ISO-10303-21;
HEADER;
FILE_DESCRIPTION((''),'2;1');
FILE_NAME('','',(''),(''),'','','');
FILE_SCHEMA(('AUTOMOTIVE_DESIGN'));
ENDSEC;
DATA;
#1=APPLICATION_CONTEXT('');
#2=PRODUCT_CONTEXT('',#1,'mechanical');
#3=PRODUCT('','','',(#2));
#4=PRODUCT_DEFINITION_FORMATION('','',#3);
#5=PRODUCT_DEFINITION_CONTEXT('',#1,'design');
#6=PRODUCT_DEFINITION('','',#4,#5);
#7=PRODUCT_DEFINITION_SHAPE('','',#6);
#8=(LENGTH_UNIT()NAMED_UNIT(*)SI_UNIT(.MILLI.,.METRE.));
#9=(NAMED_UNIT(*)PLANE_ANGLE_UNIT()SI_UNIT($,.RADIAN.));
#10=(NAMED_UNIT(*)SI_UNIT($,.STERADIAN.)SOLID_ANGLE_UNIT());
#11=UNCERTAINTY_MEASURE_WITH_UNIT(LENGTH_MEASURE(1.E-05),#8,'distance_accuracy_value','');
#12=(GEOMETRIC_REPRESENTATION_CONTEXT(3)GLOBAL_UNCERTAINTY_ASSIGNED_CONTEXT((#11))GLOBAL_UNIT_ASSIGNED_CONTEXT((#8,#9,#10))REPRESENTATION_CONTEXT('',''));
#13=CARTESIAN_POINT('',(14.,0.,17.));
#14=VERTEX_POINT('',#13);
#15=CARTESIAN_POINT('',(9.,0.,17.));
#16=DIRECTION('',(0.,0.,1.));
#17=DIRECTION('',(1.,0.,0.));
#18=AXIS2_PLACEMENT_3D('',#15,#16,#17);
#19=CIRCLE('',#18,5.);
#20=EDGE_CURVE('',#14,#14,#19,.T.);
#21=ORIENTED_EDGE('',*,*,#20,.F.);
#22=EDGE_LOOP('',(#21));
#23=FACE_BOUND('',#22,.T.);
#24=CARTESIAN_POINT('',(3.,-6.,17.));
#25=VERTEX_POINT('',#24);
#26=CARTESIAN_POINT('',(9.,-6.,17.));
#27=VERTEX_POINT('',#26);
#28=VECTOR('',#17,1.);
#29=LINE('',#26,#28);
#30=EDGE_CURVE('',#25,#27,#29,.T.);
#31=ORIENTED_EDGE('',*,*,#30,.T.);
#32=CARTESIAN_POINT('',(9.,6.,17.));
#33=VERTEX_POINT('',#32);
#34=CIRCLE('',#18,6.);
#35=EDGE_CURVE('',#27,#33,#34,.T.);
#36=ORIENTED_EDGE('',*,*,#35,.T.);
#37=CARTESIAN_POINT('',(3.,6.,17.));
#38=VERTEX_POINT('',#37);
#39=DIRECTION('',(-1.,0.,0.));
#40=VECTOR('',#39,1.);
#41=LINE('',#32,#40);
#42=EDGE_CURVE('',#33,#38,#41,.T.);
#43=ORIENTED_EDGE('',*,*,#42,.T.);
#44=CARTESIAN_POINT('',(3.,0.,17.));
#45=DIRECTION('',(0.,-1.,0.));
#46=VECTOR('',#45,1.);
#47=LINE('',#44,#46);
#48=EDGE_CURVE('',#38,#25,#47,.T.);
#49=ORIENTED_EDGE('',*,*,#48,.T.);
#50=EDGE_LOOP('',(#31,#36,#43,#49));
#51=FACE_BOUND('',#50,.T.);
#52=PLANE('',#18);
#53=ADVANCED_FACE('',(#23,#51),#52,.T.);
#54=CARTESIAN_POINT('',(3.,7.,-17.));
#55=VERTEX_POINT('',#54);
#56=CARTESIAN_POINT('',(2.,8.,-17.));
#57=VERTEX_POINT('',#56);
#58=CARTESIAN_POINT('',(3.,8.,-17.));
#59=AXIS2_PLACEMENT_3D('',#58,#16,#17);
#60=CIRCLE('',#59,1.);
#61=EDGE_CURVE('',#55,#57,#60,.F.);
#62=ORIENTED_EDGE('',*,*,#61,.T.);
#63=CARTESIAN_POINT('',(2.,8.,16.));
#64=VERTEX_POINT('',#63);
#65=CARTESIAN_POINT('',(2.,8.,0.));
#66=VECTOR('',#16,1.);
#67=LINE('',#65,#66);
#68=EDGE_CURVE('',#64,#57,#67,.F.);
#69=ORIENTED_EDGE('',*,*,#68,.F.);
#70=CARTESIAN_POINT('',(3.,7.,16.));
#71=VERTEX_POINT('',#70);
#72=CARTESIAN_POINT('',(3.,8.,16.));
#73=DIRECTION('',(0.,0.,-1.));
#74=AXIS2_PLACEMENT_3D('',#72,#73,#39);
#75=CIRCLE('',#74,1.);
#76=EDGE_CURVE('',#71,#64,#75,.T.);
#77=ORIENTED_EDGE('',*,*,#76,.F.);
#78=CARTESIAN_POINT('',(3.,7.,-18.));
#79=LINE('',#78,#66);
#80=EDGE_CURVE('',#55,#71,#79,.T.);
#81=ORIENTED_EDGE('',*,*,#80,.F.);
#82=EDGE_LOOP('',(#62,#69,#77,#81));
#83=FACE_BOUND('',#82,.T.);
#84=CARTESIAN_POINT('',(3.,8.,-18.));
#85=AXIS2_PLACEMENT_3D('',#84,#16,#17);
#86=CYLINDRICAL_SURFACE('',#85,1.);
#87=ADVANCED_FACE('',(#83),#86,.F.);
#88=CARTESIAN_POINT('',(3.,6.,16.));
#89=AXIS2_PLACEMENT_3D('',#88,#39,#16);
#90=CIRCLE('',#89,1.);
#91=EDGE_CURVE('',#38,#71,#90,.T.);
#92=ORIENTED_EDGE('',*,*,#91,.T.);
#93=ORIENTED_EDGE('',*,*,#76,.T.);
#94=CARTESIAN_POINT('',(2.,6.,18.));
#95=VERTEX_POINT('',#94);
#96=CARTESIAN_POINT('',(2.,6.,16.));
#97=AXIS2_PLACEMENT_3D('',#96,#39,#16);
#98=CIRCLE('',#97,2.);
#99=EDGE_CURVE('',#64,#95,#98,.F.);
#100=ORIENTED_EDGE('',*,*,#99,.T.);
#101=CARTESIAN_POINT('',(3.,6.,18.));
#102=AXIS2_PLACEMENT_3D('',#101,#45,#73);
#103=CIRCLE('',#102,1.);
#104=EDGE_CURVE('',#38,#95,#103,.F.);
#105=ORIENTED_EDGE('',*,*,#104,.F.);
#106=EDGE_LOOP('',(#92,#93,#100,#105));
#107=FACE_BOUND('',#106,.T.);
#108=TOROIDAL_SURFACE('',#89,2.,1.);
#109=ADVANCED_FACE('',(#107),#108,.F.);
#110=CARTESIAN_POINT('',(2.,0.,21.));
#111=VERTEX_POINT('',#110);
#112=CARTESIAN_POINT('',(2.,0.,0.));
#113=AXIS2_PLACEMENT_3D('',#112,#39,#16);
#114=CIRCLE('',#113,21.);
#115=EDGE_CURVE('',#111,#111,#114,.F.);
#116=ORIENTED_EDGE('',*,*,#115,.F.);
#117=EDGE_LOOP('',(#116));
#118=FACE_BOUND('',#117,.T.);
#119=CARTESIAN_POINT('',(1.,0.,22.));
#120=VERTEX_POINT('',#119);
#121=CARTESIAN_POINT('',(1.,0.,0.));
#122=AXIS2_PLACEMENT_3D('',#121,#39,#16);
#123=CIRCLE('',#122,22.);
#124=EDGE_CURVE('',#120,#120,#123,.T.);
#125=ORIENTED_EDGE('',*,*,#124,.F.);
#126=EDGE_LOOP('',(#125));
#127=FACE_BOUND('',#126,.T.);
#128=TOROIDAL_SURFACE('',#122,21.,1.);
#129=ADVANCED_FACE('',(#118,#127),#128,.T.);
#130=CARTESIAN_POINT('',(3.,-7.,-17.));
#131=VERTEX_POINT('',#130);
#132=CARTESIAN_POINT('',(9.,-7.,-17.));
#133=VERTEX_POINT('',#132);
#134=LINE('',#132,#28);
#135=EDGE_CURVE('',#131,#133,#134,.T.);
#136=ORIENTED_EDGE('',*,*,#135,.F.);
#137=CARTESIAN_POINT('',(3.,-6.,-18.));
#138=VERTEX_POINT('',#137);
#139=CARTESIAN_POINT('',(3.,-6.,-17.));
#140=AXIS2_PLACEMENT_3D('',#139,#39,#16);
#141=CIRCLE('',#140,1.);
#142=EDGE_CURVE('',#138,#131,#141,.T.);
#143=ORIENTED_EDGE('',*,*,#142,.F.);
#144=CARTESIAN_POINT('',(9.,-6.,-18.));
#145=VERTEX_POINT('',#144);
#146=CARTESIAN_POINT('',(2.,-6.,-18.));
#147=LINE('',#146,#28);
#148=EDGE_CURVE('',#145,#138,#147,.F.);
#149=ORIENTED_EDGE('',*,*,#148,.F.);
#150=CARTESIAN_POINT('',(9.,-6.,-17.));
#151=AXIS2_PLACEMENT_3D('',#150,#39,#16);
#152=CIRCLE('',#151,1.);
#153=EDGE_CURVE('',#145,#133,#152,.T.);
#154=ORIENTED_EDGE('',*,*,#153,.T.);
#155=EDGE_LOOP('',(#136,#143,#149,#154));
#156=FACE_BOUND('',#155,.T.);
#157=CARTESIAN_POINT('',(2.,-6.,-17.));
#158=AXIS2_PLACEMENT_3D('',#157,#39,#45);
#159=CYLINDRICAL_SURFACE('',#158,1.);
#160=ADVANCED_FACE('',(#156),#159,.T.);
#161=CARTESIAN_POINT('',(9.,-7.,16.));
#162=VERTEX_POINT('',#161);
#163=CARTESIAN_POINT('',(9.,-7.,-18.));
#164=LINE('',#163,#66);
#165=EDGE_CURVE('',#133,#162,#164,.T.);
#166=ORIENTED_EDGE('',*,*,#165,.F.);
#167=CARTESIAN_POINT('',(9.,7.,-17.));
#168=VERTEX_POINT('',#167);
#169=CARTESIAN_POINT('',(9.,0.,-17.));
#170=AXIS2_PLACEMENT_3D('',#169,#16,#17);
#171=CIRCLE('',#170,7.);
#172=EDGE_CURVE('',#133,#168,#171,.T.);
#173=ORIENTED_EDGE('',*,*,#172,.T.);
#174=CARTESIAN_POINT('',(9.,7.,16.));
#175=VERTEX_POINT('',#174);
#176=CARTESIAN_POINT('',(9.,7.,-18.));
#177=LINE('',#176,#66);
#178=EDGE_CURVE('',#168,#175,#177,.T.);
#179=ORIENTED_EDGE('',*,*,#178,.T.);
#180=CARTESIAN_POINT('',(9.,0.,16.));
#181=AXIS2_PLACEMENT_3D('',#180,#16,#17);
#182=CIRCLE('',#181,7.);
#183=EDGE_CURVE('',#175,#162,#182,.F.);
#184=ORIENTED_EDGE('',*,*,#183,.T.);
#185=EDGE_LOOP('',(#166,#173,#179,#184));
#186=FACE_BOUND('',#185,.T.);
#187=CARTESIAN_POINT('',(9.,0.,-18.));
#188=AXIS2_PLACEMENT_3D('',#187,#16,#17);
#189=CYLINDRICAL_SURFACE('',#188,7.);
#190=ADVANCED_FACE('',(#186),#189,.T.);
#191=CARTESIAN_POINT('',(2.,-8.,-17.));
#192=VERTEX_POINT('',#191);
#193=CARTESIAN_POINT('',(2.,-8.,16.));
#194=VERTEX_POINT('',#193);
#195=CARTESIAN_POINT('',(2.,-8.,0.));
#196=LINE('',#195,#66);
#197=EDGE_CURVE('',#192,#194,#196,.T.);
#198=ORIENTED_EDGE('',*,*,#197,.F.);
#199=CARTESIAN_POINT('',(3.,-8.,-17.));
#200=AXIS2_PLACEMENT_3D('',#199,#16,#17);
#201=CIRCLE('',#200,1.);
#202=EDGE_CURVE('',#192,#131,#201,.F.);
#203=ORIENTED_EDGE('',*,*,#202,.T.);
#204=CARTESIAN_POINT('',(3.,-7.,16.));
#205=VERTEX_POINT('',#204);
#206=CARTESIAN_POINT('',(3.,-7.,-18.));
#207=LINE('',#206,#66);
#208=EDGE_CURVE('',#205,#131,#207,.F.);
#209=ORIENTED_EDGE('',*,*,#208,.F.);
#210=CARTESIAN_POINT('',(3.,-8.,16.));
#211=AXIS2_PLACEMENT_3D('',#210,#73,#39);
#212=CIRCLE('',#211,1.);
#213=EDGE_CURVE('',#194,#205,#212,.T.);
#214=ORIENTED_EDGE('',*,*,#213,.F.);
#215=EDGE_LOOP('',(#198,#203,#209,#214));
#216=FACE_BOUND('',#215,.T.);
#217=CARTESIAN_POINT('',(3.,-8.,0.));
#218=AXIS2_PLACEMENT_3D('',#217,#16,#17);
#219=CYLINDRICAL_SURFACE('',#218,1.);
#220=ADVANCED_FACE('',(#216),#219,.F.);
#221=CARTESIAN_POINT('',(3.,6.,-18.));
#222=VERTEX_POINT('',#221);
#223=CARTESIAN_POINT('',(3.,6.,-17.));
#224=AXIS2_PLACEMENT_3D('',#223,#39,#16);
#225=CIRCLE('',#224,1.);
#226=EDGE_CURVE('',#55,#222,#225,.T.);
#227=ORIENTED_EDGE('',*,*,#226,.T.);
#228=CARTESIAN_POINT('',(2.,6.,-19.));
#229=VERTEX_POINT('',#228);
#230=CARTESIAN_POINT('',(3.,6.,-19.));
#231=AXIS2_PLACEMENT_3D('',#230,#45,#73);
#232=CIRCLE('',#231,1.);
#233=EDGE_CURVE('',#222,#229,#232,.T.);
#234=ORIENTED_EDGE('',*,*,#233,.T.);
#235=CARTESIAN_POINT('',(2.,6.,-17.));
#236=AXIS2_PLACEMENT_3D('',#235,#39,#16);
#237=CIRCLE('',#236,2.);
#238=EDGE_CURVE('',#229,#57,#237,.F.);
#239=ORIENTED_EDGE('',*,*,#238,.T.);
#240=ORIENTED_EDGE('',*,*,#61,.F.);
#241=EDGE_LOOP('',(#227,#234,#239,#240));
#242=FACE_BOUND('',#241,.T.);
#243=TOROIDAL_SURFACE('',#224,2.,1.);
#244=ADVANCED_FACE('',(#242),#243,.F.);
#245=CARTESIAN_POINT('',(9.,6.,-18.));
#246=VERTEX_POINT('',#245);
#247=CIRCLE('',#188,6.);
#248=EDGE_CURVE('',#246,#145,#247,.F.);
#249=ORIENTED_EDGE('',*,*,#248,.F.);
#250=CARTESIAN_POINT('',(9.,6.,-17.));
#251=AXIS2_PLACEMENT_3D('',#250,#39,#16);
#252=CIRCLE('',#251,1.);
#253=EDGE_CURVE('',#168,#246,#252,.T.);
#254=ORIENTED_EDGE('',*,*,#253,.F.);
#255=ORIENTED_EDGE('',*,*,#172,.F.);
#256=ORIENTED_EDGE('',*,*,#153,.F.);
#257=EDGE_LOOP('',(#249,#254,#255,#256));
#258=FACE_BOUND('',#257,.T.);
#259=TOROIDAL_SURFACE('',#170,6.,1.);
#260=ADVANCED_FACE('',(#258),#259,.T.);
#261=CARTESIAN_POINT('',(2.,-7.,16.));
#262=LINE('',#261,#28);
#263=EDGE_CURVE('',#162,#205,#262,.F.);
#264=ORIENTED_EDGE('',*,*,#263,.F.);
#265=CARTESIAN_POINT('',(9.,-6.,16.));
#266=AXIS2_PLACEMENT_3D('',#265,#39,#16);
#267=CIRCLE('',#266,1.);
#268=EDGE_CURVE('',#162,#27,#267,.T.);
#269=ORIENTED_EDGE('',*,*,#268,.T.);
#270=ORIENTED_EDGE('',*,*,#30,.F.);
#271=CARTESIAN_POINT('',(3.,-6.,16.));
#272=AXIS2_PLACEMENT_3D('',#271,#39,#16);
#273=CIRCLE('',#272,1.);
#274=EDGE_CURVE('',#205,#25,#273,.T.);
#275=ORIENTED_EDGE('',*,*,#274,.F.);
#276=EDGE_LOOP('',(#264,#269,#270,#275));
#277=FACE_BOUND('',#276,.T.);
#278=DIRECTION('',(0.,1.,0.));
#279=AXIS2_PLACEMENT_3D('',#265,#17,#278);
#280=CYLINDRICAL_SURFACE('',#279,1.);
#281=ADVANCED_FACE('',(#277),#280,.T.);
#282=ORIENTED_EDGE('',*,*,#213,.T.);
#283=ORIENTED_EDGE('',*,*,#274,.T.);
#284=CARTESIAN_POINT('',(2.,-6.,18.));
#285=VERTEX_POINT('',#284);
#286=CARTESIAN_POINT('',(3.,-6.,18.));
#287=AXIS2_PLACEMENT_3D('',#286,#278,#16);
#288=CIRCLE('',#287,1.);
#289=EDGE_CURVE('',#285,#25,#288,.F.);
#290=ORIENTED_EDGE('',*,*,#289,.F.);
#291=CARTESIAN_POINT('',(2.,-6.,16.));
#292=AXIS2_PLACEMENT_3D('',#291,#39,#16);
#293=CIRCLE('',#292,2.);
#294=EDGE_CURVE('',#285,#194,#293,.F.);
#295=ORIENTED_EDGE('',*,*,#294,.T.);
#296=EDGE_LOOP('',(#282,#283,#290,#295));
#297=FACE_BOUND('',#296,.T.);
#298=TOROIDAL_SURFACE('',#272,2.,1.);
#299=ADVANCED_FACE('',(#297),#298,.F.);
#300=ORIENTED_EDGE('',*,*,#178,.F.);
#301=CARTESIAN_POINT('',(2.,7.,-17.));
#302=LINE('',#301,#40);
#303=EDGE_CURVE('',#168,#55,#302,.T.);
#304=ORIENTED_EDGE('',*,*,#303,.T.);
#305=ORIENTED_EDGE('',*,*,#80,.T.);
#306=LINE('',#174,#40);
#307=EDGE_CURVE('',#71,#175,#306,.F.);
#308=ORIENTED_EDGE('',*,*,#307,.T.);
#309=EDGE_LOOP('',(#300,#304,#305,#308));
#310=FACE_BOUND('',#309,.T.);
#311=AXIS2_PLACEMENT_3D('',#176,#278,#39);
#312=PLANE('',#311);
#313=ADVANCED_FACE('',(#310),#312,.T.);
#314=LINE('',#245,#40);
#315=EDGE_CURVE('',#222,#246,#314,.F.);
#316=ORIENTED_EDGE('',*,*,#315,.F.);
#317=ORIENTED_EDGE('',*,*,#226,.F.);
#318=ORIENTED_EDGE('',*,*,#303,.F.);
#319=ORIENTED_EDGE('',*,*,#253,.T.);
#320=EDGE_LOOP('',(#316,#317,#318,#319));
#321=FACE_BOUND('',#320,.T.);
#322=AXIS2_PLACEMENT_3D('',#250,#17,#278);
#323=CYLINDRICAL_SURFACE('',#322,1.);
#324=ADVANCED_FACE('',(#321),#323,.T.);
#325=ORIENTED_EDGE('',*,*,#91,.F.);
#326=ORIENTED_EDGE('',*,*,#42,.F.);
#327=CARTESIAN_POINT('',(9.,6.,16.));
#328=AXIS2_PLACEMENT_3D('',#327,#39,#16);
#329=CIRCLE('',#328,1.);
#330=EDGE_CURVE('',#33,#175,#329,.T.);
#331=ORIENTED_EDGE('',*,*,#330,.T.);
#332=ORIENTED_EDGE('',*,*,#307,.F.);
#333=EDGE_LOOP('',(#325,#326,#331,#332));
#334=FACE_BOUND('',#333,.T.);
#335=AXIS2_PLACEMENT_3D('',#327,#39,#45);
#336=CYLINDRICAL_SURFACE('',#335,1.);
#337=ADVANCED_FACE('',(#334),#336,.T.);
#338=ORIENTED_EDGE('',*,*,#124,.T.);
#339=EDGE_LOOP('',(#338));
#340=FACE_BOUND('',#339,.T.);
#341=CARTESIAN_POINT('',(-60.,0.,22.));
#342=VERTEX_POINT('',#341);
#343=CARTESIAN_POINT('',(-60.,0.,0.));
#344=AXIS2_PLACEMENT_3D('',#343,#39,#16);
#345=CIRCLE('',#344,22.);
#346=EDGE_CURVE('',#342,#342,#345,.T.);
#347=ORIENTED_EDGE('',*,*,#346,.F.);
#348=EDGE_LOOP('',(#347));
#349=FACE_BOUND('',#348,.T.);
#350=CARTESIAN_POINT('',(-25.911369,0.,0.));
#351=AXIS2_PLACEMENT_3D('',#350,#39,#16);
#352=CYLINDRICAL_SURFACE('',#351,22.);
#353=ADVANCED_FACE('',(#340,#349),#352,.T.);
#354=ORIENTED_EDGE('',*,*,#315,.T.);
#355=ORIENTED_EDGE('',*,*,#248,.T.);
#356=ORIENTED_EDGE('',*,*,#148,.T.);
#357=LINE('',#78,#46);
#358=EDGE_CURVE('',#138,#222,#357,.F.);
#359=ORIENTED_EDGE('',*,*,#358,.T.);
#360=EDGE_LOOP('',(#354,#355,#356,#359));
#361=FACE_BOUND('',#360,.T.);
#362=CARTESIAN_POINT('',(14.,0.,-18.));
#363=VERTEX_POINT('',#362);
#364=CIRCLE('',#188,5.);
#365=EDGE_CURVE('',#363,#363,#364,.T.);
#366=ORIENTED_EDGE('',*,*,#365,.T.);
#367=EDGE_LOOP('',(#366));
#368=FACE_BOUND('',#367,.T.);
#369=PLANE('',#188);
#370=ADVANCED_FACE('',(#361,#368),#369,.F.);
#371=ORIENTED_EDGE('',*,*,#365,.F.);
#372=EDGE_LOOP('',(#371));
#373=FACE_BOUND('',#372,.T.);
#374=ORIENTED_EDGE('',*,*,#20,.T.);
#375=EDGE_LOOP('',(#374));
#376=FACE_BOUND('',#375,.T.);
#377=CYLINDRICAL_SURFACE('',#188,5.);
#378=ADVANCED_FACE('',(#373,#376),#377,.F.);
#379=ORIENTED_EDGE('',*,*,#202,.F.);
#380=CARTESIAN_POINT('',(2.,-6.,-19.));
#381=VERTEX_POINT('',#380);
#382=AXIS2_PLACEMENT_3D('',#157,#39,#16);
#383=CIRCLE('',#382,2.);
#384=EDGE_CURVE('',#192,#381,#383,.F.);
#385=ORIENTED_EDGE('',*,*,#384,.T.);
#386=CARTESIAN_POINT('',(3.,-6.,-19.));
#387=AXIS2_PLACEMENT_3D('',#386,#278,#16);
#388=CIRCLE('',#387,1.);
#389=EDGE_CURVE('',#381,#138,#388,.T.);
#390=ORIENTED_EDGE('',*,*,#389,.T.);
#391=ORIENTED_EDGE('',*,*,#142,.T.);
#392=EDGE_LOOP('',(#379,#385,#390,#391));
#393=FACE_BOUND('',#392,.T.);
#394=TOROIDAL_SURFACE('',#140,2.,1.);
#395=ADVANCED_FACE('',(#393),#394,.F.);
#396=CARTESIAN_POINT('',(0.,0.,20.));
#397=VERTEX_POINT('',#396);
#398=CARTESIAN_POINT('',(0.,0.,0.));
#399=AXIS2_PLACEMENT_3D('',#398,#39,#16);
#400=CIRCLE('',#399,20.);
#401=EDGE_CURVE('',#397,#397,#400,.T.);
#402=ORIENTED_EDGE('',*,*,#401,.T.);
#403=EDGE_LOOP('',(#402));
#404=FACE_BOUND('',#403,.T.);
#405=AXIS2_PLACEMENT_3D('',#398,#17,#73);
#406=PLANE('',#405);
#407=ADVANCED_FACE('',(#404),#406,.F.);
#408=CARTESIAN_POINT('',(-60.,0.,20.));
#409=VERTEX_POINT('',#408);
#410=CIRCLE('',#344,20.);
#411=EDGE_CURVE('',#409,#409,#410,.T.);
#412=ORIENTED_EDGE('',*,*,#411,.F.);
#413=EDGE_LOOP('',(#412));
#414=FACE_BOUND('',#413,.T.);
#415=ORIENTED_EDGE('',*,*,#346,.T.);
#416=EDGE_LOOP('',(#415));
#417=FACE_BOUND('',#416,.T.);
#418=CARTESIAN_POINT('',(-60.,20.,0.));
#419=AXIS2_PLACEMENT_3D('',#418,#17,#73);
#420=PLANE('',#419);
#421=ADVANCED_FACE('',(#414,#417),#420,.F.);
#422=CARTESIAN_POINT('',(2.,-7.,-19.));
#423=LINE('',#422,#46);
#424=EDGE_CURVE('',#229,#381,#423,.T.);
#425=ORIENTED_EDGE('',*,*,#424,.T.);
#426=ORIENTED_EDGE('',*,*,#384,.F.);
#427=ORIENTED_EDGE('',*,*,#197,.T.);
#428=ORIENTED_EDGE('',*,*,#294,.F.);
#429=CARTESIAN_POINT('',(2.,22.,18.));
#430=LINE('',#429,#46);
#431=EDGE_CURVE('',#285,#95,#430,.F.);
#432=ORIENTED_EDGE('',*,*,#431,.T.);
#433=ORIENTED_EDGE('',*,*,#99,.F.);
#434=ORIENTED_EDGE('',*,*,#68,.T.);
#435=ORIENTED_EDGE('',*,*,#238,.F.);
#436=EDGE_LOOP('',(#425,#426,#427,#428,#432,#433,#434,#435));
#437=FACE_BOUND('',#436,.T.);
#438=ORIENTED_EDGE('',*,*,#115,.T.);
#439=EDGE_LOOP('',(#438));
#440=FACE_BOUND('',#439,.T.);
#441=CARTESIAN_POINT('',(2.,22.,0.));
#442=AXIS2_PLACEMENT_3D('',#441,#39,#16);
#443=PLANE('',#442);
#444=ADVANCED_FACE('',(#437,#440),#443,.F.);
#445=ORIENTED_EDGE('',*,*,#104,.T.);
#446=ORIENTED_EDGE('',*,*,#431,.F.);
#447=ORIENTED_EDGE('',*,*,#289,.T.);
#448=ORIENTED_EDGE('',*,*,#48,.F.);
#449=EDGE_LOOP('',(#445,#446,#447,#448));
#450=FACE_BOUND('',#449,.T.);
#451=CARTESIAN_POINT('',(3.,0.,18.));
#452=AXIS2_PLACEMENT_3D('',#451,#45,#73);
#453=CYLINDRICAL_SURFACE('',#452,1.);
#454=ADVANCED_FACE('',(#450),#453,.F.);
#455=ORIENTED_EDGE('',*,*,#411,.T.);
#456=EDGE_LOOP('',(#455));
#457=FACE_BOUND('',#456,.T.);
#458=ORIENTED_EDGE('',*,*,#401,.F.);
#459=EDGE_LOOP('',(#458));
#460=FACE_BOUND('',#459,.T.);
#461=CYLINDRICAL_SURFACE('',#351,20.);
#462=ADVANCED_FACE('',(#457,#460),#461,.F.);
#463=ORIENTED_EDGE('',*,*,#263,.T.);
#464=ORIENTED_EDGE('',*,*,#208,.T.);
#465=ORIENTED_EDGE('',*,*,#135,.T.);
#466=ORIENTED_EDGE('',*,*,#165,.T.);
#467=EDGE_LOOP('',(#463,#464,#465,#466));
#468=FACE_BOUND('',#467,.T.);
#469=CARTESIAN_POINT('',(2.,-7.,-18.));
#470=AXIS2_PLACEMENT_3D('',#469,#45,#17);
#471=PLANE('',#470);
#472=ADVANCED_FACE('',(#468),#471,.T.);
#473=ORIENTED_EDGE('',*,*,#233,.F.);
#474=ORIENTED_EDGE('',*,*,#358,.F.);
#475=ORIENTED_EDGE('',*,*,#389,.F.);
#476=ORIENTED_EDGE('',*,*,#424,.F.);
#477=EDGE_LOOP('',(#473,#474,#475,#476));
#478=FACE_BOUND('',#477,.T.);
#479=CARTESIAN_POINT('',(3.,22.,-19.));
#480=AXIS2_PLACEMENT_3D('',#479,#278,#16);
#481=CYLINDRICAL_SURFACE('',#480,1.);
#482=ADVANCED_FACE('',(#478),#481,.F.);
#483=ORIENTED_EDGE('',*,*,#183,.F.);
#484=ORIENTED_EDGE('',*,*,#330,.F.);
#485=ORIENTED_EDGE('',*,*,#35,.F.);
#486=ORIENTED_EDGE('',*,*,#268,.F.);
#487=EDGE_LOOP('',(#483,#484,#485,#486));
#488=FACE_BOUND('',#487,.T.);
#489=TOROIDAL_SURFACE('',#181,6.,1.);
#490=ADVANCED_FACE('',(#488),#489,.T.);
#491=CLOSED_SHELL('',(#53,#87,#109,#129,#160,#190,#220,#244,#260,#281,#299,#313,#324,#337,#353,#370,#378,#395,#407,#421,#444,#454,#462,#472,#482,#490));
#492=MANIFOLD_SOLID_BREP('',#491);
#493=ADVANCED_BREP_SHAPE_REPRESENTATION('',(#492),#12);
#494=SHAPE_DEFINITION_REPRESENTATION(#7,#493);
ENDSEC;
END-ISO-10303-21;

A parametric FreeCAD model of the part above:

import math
import FreeCAD as App
import Part
import Sketcher
from FreeCAD import Vector


def edges_at(feature, points):
    """Names of the edges that pass closest to the given points."""
    edges = feature.Shape.Edges
    near = lambda p: min(range(len(edges)), key=lambda i: edges[i].distToShape(Part.Vertex(*p))[0])
    return sorted({f"Edge{near(p) + 1}" for p in points})

doc = App.newDocument("Part")
body = doc.addObject("PartDesign::Body", "Body")

# Sketch on XY plane
sketch1 = body.newObject("Sketcher::SketchObject", "Sketch")
sketch1.AttachmentSupport = (doc.getObject("XY_Plane"), [""])
sketch1.MapMode = "FlatFace"
sketch1.addGeometry([
    Part.LineSegment(Vector(2, 0, 0), Vector(2, 22, 0)),  # 0
    Part.LineSegment(Vector(2, 22, 0), Vector(-60, 22, 0)),  # 1
    Part.LineSegment(Vector(-60, 22, 0), Vector(-60, 20, 0)),  # 2
    Part.LineSegment(Vector(-60, 20, 0), Vector(0, 20, 0)),  # 3
    Part.LineSegment(Vector(0, 20, 0), Vector(0, 0, 0)),  # 4
    Part.LineSegment(Vector(0, 0, 0), Vector(2, 0, 0)),  # 5
], False)
sketch1.addConstraint([
    Sketcher.Constraint("Coincident", 0, 2, 1, 1),
    Sketcher.Constraint("Coincident", 1, 2, 2, 1),
    Sketcher.Constraint("Coincident", 2, 2, 3, 1),
    Sketcher.Constraint("Coincident", 3, 2, 4, 1),
    Sketcher.Constraint("Coincident", 4, 2, 5, 1),
    Sketcher.Constraint("Coincident", 5, 2, 0, 1),
    Sketcher.Constraint("Vertical", 0),
    Sketcher.Constraint("Horizontal", 1),
    Sketcher.Constraint("Vertical", 2),
    Sketcher.Constraint("Horizontal", 3),
    Sketcher.Constraint("Vertical", 4),
    Sketcher.Constraint("Horizontal", 5),
    Sketcher.Constraint("Coincident", 4, 2, -1, 1),
    Sketcher.Constraint("Equal", 5, 2),
    Sketcher.Constraint("DistanceX", 1, 2, 1, 1, 62.0),
    Sketcher.Constraint("DistanceX", 3, 1, 3, 2, 60.0),
    Sketcher.Constraint("DistanceY", 0, 1, 0, 2, 22.0),
])
revolution = body.newObject("PartDesign::Revolution", "Revolution")
revolution.Profile = sketch1
revolution.ReferenceAxis = (sketch1, ["H_Axis"])
revolution.Angle = 360

# Sketch on XY plane
sketch2 = body.newObject("Sketcher::SketchObject", "Sketch001")
sketch2.AttachmentSupport = (doc.getObject("XY_Plane"), [""])
sketch2.MapMode = "FlatFace"
sketch2.AttachmentOffset = App.Placement(Vector(0, 0, 17), App.Rotation())
sketch2.addGeometry([
    Part.LineSegment(Vector(9, 7, 0), Vector(2, 7, 0)),  # 0
    Part.LineSegment(Vector(2, 7, 0), Vector(2, -7, 0)),  # 1
    Part.LineSegment(Vector(2, -7, 0), Vector(9, -7, 0)),  # 2
    Part.ArcOfCircle(Part.Circle(Vector(9, 0, 0), Vector(0, 0, 1), 7), math.radians(-90), math.radians(90)),  # 3
    Part.Circle(Vector(9, 0, 0), Vector(0, 0, 1), 5),  # 4
], False)
sketch2.addConstraint([
    Sketcher.Constraint("Coincident", 0, 2, 1, 1),
    Sketcher.Constraint("Coincident", 1, 2, 2, 1),
    Sketcher.Constraint("Tangent", 2, 2, 3, 1),
    Sketcher.Constraint("Tangent", 3, 2, 0, 1),
    Sketcher.Constraint("Horizontal", 0),
    Sketcher.Constraint("Vertical", 1),
    Sketcher.Constraint("Horizontal", 2),
    Sketcher.Constraint("Coincident", 4, 3, 3, 3),
    Sketcher.Constraint("PointOnObject", 3, 3, -1),
    Sketcher.Constraint("Diameter", 4, 10.0),
    Sketcher.Constraint("Radius", 3, 7.0),
    Sketcher.Constraint("DistanceX", 0, 2, 0, 1, 7.0),
    Sketcher.Constraint("DistanceX", -1, 1, 3, 3, 9.0),
])
pad1 = body.newObject("PartDesign::Pad", "Pad")
pad1.Profile = sketch2
pad1.Length = 35
pad1.Reversed = True
doc.recompute()

fillet = body.newObject("PartDesign::Fillet", "Fillet")
fillet.Base = (pad1, edges_at(pad1, [(2, 0, -22)]))
fillet.Radius = 1
doc.recompute()

fillet2 = body.newObject("PartDesign::Fillet", "Fillet001")
fillet2.Base = (fillet, edges_at(fillet, [
    (16, 0, -18),
    (5.5, -7, -18),
    (2, 0, -18),
    (2, -7, -0.5),
    (5.5, 7, -18),
    (2, 7, -0.5),
    (16, 0, 17),
    (5.5, 7, 17),
    (2, 0, 17),
    (5.5, -7, 17),
]))
fillet2.Radius = 1

doc.recompute()
